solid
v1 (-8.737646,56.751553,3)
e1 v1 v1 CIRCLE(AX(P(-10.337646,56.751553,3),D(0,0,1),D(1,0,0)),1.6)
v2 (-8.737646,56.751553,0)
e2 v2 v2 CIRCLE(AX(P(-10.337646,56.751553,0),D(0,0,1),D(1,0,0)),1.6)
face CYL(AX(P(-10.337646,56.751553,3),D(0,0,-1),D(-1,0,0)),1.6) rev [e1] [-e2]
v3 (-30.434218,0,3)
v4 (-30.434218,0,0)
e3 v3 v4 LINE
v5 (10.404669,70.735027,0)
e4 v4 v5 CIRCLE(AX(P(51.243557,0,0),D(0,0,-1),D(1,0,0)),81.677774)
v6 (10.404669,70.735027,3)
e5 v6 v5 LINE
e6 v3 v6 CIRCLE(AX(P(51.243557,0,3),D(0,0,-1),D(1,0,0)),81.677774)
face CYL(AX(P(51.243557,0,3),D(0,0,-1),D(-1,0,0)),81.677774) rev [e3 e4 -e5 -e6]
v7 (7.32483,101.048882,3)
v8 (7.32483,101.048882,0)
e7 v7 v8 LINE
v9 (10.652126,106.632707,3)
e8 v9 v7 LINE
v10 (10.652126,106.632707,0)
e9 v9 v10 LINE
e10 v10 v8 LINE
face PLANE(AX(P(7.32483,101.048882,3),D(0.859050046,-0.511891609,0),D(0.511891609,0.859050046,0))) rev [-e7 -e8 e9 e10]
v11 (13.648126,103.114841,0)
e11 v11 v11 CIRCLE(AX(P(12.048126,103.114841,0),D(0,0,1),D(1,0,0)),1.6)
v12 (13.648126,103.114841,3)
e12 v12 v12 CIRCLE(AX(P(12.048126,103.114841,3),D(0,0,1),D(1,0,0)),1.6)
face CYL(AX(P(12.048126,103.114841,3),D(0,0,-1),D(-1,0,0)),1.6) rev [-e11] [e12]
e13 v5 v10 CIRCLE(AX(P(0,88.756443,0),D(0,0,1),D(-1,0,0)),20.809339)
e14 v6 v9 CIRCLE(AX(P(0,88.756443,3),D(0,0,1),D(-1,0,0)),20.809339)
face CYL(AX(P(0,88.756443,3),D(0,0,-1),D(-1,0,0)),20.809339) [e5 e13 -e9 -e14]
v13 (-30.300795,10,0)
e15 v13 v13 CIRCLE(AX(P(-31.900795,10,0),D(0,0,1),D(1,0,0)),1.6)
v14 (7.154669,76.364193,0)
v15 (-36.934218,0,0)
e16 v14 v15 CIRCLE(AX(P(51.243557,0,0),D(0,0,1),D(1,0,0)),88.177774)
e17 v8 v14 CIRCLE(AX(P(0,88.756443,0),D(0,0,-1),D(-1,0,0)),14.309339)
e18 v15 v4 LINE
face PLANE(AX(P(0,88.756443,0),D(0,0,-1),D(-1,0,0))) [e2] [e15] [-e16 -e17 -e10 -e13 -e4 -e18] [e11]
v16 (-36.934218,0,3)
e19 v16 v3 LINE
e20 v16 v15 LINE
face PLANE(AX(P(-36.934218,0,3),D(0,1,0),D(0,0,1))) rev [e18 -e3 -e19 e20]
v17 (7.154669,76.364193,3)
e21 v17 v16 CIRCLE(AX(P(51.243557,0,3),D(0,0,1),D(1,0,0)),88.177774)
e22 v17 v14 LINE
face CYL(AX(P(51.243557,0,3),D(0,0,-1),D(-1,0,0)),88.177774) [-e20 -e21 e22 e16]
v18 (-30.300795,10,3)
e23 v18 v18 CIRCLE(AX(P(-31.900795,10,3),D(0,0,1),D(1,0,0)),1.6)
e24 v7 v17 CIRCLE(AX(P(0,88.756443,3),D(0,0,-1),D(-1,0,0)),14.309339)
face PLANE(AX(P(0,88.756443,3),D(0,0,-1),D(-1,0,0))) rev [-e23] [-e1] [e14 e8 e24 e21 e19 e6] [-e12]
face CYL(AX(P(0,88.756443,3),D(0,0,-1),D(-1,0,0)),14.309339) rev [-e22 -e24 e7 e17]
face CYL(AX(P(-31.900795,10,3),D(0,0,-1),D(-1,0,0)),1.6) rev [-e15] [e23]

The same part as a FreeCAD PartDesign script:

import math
import FreeCAD as App
import Part
import Sketcher
from FreeCAD import Vector

doc = App.newDocument("Part")
body = doc.addObject("PartDesign::Body", "Body")

sketch1 = body.newObject("Sketcher::SketchObject", "Sketch")
sketch1.AttachmentSupport = (doc.getObject("XY_Plane"), [""])
sketch1.MapMode = "FlatFace"
sketch1.addGeometry([
    Part.LineSegment(Vector(-36.9, 0, 0), Vector(-30.4, 0, 0)),
    Part.ArcOfCircle(Part.Circle(Vector(51.2, 0, 0), Vector(0, 0, 1), 81.7), math.radians(120), math.radians(180)),
    Part.ArcOfCircle(Part.Circle(Vector(0, 88.8, 0), Vector(0, 0, 1), 20.8), math.radians(-60), math.radians(59)),
    Part.LineSegment(Vector(10.7, 106.6, 0), Vector(7.3, 101, 0)),
    Part.ArcOfCircle(Part.Circle(Vector(0, 88.8, 0), Vector(0, 0, 1), 14.3), math.radians(-60), math.radians(59)),
    Part.ArcOfCircle(Part.Circle(Vector(51.2, 0, 0), Vector(0, 0, 1), 88.2), math.radians(120), math.radians(180)),
    Part.Circle(Vector(-31.9, 10, 0), Vector(0, 0, 1), 1.6),
    Part.Circle(Vector(-10.3, 56.8, 0), Vector(0, 0, 1), 1.6),
    Part.Circle(Vector(12, 103.1, 0), Vector(0, 0, 1), 1.6),
], False)
sketch1.addConstraint([
    Sketcher.Constraint("Coincident", 0, 2, 1, 2),
    Sketcher.Constraint("Tangent", 1, 1, 2, 1),
    Sketcher.Constraint("Coincident", 2, 2, 3, 1),
    Sketcher.Constraint("Coincident", 3, 2, 4, 2),
    Sketcher.Constraint("Tangent", 4, 1, 5, 1),
    Sketcher.Constraint("Coincident", 5, 2, 0, 1),
    Sketcher.Constraint("Horizontal", 0),
    Sketcher.Constraint("Coincident", 4, 3, 2, 3),
    Sketcher.Constraint("Coincident", 5, 3, 1, 3),
    Sketcher.Constraint("Equal", 6, 7),
    Sketcher.Constraint("Equal", 7, 8),
    Sketcher.Constraint("PointOnObject", 1, 3, -1),
    Sketcher.Constraint("PointOnObject", 2, 3, -2),
    Sketcher.Constraint("PointOnObject", 0, 2, -1),
    Sketcher.Constraint("Diameter", 6, 3.2),
    Sketcher.Constraint("DistanceX", 0, 1, 0, 2, 6.5),
    Sketcher.Constraint("DistanceY", -1, 1, 6, 3, 10.0),
    Sketcher.Constraint("Radius", 2, 20.809339),
    Sketcher.Constraint("Radius", 1, 81.677774),
    Sketcher.Constraint("DistanceX", 2, 2, 8, 3, 1.396),
    Sketcher.Constraint("DistanceY", -1, 1, 8, 3, 103.114841),
    Sketcher.Constraint("DistanceX", -1, 1, 3, 2, 7.32483),
    Sketcher.Constraint("DistanceY", -1, 1, 3, 2, 101.048882),
    Sketcher.Constraint("DistanceX", 6, 3, 5, 3, 83.144352),
    Sketcher.Constraint("DistanceY", 7, 3, 4, 3, 32.00489),
    Sketcher.Constraint("DistanceX", 6, 3, 7, 3, 21.56315),
    Sketcher.Constraint("DistanceX", 7, 3, 8, 3, 22.385771),
])
pad1 = body.newObject("PartDesign::Pad", "Pad")
pad1.Profile = sketch1
pad1.Length = 3

doc.recompute()
